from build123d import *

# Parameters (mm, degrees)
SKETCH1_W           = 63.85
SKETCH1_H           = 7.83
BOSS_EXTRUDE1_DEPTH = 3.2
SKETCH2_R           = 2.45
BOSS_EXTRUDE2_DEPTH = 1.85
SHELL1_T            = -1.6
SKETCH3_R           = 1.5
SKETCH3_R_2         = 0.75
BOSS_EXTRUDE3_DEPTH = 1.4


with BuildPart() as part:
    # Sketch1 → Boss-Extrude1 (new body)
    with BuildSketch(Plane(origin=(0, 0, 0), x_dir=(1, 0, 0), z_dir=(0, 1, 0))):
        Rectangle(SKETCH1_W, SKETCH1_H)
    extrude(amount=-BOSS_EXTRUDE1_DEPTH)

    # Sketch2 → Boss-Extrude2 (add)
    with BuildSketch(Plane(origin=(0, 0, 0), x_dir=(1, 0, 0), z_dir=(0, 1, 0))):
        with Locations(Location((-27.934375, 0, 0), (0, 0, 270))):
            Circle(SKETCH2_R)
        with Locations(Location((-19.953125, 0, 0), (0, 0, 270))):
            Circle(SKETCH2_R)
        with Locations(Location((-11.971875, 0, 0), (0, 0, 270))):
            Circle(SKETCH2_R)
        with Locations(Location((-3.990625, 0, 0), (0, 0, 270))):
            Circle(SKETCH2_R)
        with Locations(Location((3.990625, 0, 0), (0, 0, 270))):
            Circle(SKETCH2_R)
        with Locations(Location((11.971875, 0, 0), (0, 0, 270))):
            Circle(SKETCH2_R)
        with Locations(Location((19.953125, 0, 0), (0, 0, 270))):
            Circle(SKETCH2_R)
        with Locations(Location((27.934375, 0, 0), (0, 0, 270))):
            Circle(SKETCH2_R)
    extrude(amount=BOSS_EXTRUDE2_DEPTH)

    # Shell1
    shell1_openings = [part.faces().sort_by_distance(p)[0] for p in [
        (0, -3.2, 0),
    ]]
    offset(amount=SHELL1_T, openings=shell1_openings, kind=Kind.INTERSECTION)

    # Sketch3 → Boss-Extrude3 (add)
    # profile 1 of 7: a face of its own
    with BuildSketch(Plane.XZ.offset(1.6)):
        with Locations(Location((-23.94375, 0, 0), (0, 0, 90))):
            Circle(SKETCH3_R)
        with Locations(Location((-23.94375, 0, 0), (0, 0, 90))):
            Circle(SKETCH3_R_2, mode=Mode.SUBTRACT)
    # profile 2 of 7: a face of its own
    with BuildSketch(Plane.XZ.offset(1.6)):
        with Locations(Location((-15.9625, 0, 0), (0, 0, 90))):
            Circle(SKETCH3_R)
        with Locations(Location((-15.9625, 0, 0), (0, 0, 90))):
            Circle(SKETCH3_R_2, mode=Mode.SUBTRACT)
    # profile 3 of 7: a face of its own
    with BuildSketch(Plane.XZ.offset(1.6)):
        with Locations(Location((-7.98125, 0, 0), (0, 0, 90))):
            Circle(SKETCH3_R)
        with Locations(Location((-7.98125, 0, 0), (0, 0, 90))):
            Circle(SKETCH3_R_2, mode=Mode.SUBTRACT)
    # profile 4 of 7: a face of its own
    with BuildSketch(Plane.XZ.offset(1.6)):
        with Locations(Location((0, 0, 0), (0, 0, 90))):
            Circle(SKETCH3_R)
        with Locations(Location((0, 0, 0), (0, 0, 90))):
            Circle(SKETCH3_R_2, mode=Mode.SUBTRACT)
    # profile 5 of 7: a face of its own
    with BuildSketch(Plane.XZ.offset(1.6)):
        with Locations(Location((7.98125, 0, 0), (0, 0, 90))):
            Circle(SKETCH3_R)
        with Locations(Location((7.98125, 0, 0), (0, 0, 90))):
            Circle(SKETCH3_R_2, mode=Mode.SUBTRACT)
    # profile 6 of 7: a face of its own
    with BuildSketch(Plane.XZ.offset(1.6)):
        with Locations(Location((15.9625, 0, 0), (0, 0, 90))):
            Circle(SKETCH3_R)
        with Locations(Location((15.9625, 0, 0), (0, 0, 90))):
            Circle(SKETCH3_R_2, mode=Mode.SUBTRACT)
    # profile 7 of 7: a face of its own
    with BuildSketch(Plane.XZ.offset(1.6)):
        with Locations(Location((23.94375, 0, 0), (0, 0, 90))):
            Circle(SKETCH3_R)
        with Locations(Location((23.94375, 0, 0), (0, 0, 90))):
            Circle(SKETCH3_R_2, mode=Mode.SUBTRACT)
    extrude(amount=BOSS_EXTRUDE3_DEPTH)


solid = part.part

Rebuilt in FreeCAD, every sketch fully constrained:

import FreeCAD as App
import Part
import Sketcher
from FreeCAD import Vector


def faces_at(feature, points):
    """Names of the faces that lie closest to the given points."""
    faces = feature.Shape.Faces
    near = lambda p: min(range(len(faces)), key=lambda i: faces[i].distToShape(Part.Vertex(*p))[0])
    return sorted({f"Face{near(p) + 1}" for p in points})

doc = App.newDocument("Part")
body = doc.addObject("PartDesign::Body", "Body")

# Sketch on XZ plane
sketch1 = doc.addObject("Sketcher::SketchObject", "Sketch")
body.addObject(sketch1)
sketch1.AttachmentSupport = (doc.XZ_Plane, [""])
sketch1.MapMode = "FlatFace"
sketch1.addGeometry(Part.LineSegment(Vector(-31.925, -3.915, 0), Vector(-31.925, 3.915, 0)), False)
sketch1.addGeometry(Part.LineSegment(Vector(-31.925, 3.915, 0), Vector(31.925, 3.915, 0)), False)
sketch1.addGeometry(Part.LineSegment(Vector(31.925, 3.915, 0), Vector(31.925, -3.915, 0)), False)
sketch1.addGeometry(Part.LineSegment(Vector(31.925, -3.915, 0), Vector(-31.925, -3.915, 0)), False)
sketch1.addConstraint(Sketcher.Constraint("Coincident", 0, 2, 1, 1))
sketch1.addConstraint(Sketcher.Constraint("Coincident", 1, 2, 2, 1))
sketch1.addConstraint(Sketcher.Constraint("Coincident", 2, 2, 3, 1))
sketch1.addConstraint(Sketcher.Constraint("Coincident", 3, 2, 0, 1))
sketch1.addConstraint(Sketcher.Constraint("Vertical", 0))
sketch1.addConstraint(Sketcher.Constraint("Horizontal", 1))
sketch1.addConstraint(Sketcher.Constraint("Vertical", 2))
sketch1.addConstraint(Sketcher.Constraint("Horizontal", 3))
sketch1.addConstraint(Sketcher.Constraint("Symmetric", 0, 2, 2, 2, -1, 1))
sketch1.addConstraint(Sketcher.Constraint("DistanceX", 1, 1, 1, 2, 63.85))
sketch1.addConstraint(Sketcher.Constraint("DistanceY", 0, 1, 0, 2, 7.83))
pad1 = doc.addObject("PartDesign::Pad", "Pad")
body.addObject(pad1)
pad1.Profile = sketch1
pad1.Length = 3.2

# Sketch on XZ plane
sketch2 = doc.addObject("Sketcher::SketchObject", "Sketch001")
body.addObject(sketch2)
sketch2.AttachmentSupport = (doc.XZ_Plane, [""])
sketch2.MapMode = "FlatFace"
sketch2.addGeometry(Part.Circle(Vector(-27.934375, 0, 0), Vector(0, 0, 1), 2.45), False)
sketch2.addGeometry(Part.Circle(Vector(-19.953125, 0, 0), Vector(0, 0, 1), 2.45), False)
sketch2.addGeometry(Part.Circle(Vector(-11.971875, 0, 0), Vector(0, 0, 1), 2.45), False)
sketch2.addGeometry(Part.Circle(Vector(-3.990625, 0, 0), Vector(0, 0, 1), 2.45), False)
sketch2.addGeometry(Part.Circle(Vector(3.990625, 0, 0), Vector(0, 0, 1), 2.45), False)
sketch2.addGeometry(Part.Circle(Vector(11.971875, 0, 0), Vector(0, 0, 1), 2.45), False)
sketch2.addGeometry(Part.Circle(Vector(19.953125, 0, 0), Vector(0, 0, 1), 2.45), False)
sketch2.addGeometry(Part.Circle(Vector(27.934375, 0, 0), Vector(0, 0, 1), 2.45), False)
sketch2.addConstraint(Sketcher.Constraint("Equal", 0, 1))
sketch2.addConstraint(Sketcher.Constraint("Equal", 1, 2))
sketch2.addConstraint(Sketcher.Constraint("Equal", 2, 3))
sketch2.addConstraint(Sketcher.Constraint("Equal", 3, 4))
sketch2.addConstraint(Sketcher.Constraint("Equal", 4, 5))
sketch2.addConstraint(Sketcher.Constraint("Equal", 5, 6))
sketch2.addConstraint(Sketcher.Constraint("Equal", 6, 7))
sketch2.addConstraint(Sketcher.Constraint("Symmetric", 3, 3, 4, 3, -1, 1))
sketch2.addConstraint(Sketcher.Constraint("Symmetric", 2, 3, 5, 3, -1, 1))
sketch2.addConstraint(Sketcher.Constraint("Symmetric", 1, 3, 6, 3, -1, 1))
sketch2.addConstraint(Sketcher.Constraint("Symmetric", 0, 3, 7, 3, -1, 1))
sketch2.addConstraint(Sketcher.Constraint("PointOnObject", 0, 3, -1))
sketch2.addConstraint(Sketcher.Constraint("PointOnObject", 1, 3, -1))
sketch2.addConstraint(Sketcher.Constraint("PointOnObject", 2, 3, -1))
sketch2.addConstraint(Sketcher.Constraint("PointOnObject", 3, 3, -1))
sketch2.addConstraint(Sketcher.Constraint("Diameter", 0, 4.9))
sketch2.addConstraint(Sketcher.Constraint("DistanceX", 0, 3, 4, 3, 31.925))
sketch2.addConstraint(Sketcher.Constraint("DistanceX", 1, 3, 5, 3, 31.925))
sketch2.addConstraint(Sketcher.Constraint("DistanceX", 0, 3, 2, 3, 15.9625))
sketch2.addConstraint(Sketcher.Constraint("DistanceX", 0, 3, 1, 3, 7.98125))
pad2 = doc.addObject("PartDesign::Pad", "Pad001")
body.addObject(pad2)
pad2.Profile = sketch2
pad2.Length = 1.85
pad2.Reversed = True
doc.recompute()

thickness = doc.addObject("PartDesign::Thickness", "Thickness")
body.addObject(thickness)
thickness.Base = (pad2, faces_at(pad2, [(0, -3.2, 0)]))
thickness.Value = 1.6
thickness.Reversed = True
thickness.Join = "Intersection"

# Sketch on XZ plane
sketch3 = doc.addObject("Sketcher::SketchObject", "Sketch002")
body.addObject(sketch3)
sketch3.AttachmentSupport = (doc.XZ_Plane, [""])
sketch3.MapMode = "FlatFace"
sketch3.AttachmentOffset = App.Placement(Vector(0, 0, 1.6), App.Rotation())
sketch3.addGeometry(Part.Circle(Vector(-23.94375, 0, 0), Vector(0, 0, 1), 1.5), False)
sketch3.addGeometry(Part.Circle(Vector(-23.94375, 0, 0), Vector(0, 0, 1), 0.75), False)
sketch3.addGeometry(Part.Circle(Vector(-15.9625, 0, 0), Vector(0, 0, 1), 1.5), False)
sketch3.addGeometry(Part.Circle(Vector(-15.9625, 0, 0), Vector(0, 0, 1), 0.75), False)
sketch3.addGeometry(Part.Circle(Vector(-7.98125, 0, 0), Vector(0, 0, 1), 1.5), False)
sketch3.addGeometry(Part.Circle(Vector(-7.98125, 0, 0), Vector(0, 0, 1), 0.75), False)
sketch3.addGeometry(Part.Circle(Vector(0, 0, 0), Vector(0, 0, 1), 1.5), False)
sketch3.addGeometry(Part.Circle(Vector(0, 0, 0), Vector(0, 0, 1), 0.75), False)
sketch3.addGeometry(Part.Circle(Vector(7.98125, 0, 0), Vector(0, 0, 1), 1.5), False)
sketch3.addGeometry(Part.Circle(Vector(7.98125, 0, 0), Vector(0, 0, 1), 0.75), False)
sketch3.addGeometry(Part.Circle(Vector(15.9625, 0, 0), Vector(0, 0, 1), 1.5), False)
sketch3.addGeometry(Part.Circle(Vector(15.9625, 0, 0), Vector(0, 0, 1), 0.75), False)
sketch3.addGeometry(Part.Circle(Vector(23.94375, 0, 0), Vector(0, 0, 1), 1.5), False)
sketch3.addGeometry(Part.Circle(Vector(23.94375, 0, 0), Vector(0, 0, 1), 0.75), False)
sketch3.addConstraint(Sketcher.Constraint("Coincident", 6, 3, -1, 1))
sketch3.addConstraint(Sketcher.Constraint("Coincident", 7, 3, -1, 1))
sketch3.addConstraint(Sketcher.Constraint("Coincident", 1, 3, 0, 3))
sketch3.addConstraint(Sketcher.Constraint("Coincident", 3, 3, 2, 3))
sketch3.addConstraint(Sketcher.Constraint("Coincident", 5, 3, 4, 3))
sketch3.addConstraint(Sketcher.Constraint("Coincident", 9, 3, 8, 3))
sketch3.addConstraint(Sketcher.Constraint("Coincident", 11, 3, 10, 3))
sketch3.addConstraint(Sketcher.Constraint("Coincident", 13, 3, 12, 3))
sketch3.addConstraint(Sketcher.Constraint("Equal", 0, 2))
sketch3.addConstraint(Sketcher.Constraint("Equal", 1, 3))
sketch3.addConstraint(Sketcher.Constraint("Equal", 2, 4))
sketch3.addConstraint(Sketcher.Constraint("Equal", 3, 5))
sketch3.addConstraint(Sketcher.Constraint("Equal", 4, 6))
sketch3.addConstraint(Sketcher.Constraint("Equal", 5, 7))
sketch3.addConstraint(Sketcher.Constraint("Equal", 6, 8))
sketch3.addConstraint(Sketcher.Constraint("Equal", 7, 9))
sketch3.addConstraint(Sketcher.Constraint("Equal", 8, 10))
sketch3.addConstraint(Sketcher.Constraint("Equal", 9, 11))
sketch3.addConstraint(Sketcher.Constraint("Equal", 10, 12))
sketch3.addConstraint(Sketcher.Constraint("Equal", 11, 13))
sketch3.addConstraint(Sketcher.Constraint("Symmetric", 4, 3, 8, 3, -1, 1))
sketch3.addConstraint(Sketcher.Constraint("Symmetric", 2, 3, 10, 3, -1, 1))
sketch3.addConstraint(Sketcher.Constraint("Symmetric", 0, 3, 12, 3, -1, 1))
sketch3.addConstraint(Sketcher.Constraint("PointOnObject", 0, 3, -1))
sketch3.addConstraint(Sketcher.Constraint("PointOnObject", 2, 3, -1))
sketch3.addConstraint(Sketcher.Constraint("PointOnObject", 4, 3, -1))
sketch3.addConstraint(Sketcher.Constraint("Diameter", 0, 3.0))
sketch3.addConstraint(Sketcher.Constraint("Diameter", 1, 1.5))
sketch3.addConstraint(Sketcher.Constraint("DistanceX", 2, 3, -1, 1, 15.9625))
sketch3.addConstraint(Sketcher.Constraint("DistanceX", 0, 3, 4, 3, 15.9625))
sketch3.addConstraint(Sketcher.Constraint("DistanceX", 4, 3, 8, 3, 15.9625))
pad3 = doc.addObject("PartDesign::Pad", "Pad002")
body.addObject(pad3)
pad3.Profile = sketch3
pad3.Length = 1.4

doc.recompute()
